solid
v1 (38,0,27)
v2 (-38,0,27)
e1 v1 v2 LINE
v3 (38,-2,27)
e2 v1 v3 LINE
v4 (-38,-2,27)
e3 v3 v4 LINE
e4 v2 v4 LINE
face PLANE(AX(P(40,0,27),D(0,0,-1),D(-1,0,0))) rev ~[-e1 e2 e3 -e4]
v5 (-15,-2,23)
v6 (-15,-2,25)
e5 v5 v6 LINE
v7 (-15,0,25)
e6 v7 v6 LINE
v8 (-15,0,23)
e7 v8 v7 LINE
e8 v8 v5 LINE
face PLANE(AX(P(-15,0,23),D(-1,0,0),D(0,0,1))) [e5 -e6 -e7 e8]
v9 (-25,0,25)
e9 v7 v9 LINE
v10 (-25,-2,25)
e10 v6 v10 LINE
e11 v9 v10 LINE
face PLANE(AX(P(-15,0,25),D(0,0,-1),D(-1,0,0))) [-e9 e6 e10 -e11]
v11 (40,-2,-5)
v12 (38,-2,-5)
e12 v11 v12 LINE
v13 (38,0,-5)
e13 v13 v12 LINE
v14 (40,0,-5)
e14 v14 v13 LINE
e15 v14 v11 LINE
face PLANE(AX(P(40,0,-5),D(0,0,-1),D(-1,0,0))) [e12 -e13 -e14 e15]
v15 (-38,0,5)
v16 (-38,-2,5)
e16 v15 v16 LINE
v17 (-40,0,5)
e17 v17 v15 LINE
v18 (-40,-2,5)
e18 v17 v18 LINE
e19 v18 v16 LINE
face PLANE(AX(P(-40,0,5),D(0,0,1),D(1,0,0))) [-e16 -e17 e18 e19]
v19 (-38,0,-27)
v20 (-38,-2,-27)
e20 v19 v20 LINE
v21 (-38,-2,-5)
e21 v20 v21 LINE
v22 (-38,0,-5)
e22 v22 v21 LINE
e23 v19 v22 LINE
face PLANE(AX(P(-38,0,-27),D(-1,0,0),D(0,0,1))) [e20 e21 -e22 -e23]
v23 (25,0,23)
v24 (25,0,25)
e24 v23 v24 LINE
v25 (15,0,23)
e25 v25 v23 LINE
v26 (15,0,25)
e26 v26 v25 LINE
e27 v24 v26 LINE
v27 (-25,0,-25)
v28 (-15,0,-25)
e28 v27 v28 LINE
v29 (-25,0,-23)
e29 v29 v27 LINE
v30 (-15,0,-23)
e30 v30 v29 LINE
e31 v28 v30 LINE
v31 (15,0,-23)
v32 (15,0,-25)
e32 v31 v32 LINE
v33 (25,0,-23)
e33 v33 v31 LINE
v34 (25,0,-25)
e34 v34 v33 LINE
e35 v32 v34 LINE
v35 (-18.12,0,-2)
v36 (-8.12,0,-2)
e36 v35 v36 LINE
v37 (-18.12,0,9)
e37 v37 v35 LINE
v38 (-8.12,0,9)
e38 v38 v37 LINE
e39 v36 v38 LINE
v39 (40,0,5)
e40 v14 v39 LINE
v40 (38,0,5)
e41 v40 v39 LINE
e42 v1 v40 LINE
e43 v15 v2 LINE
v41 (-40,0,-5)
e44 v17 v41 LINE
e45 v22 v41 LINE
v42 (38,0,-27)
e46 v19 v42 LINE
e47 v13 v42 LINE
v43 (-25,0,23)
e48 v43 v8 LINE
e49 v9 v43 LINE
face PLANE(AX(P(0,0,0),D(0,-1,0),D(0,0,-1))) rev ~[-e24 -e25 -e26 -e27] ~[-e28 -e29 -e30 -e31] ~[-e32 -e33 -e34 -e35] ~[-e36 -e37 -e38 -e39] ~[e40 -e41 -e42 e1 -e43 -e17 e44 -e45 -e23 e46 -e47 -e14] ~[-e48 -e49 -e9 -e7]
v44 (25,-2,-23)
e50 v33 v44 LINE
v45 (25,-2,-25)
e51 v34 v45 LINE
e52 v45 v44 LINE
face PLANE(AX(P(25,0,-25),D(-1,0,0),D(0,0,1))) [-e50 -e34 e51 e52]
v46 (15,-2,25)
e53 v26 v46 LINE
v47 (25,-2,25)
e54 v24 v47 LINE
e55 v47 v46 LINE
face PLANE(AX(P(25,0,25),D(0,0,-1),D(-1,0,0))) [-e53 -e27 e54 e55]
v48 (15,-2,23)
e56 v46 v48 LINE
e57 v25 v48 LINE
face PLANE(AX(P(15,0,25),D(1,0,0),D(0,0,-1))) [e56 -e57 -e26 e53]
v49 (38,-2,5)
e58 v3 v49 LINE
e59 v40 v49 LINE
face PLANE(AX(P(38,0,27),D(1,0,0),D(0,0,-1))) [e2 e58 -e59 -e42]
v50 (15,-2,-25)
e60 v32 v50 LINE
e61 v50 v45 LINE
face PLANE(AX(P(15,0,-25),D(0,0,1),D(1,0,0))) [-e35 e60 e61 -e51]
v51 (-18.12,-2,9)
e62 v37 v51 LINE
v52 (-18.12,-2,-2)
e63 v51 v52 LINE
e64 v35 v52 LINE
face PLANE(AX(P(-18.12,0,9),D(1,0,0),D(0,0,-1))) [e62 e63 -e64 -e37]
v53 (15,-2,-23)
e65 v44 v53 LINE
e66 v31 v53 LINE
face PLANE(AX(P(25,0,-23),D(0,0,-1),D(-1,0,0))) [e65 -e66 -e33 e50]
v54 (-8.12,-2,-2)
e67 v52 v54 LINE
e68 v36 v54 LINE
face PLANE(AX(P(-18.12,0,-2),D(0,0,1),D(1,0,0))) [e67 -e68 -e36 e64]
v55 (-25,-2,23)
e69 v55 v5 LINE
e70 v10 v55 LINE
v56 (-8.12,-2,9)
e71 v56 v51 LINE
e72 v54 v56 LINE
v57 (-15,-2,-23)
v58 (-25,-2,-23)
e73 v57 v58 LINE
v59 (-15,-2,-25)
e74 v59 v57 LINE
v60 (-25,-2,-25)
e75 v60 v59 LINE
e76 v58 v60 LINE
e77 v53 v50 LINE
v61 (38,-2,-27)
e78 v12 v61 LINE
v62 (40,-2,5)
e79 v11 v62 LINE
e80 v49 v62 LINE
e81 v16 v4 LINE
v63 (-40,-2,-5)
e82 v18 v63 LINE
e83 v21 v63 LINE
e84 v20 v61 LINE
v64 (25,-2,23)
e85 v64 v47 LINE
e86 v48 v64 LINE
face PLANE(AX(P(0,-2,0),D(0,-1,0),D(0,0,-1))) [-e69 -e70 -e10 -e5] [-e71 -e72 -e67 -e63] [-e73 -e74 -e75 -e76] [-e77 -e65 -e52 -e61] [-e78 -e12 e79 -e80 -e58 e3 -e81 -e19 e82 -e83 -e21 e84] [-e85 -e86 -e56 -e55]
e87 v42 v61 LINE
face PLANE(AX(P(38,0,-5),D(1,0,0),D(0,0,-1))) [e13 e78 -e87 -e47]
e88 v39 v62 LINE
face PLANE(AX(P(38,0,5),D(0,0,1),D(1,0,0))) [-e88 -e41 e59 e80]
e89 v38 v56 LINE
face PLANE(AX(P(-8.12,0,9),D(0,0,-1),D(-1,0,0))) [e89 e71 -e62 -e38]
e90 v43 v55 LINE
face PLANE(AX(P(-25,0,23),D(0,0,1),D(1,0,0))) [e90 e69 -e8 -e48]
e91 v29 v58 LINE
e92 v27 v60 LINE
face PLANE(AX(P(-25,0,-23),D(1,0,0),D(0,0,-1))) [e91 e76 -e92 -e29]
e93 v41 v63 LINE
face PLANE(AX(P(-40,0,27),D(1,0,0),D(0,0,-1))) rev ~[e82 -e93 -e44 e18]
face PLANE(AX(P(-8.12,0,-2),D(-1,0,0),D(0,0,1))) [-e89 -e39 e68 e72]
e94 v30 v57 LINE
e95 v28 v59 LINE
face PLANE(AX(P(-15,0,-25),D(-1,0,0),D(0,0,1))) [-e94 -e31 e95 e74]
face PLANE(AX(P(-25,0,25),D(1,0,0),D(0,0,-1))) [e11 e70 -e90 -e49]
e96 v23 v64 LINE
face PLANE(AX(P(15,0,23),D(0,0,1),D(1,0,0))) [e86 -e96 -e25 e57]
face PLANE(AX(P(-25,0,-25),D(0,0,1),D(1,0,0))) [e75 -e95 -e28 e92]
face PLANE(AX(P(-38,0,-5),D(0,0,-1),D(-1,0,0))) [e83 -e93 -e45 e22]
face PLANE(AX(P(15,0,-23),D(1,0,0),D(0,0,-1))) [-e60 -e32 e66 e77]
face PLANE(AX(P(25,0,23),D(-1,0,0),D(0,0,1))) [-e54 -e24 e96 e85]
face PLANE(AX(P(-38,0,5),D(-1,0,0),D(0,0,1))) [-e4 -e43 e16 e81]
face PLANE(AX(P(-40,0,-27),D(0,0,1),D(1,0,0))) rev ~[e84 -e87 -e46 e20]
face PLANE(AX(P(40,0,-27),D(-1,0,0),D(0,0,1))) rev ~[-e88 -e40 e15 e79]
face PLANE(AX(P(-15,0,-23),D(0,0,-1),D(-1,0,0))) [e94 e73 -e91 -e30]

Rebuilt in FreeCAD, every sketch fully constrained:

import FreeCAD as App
import Part
import Sketcher


def add_polygon(sketch, points):
    """Adds a closed chain of lines whose ends are joined by coincident constraints."""
    first, n = sketch.GeometryCount, len(points)
    for a, b in zip(points, points[1:] + points[:1]):
        sketch.addGeometry(Part.LineSegment(App.Vector(*a, 0), App.Vector(*b, 0)), False)
    for i in range(n):
        sketch.addConstraint(Sketcher.Constraint("Coincident", first + i, 2, first + (i + 1) % n, 1))

doc = App.newDocument("Part")
body = doc.addObject("PartDesign::Body", "Body")

sketch1 = doc.addObject("Sketcher::SketchObject", "Sketch")
body.addObject(sketch1)
sketch1.AttachmentSupport = (doc.XZ_Plane, [""])
sketch1.MapMode = "FlatFace"
add_polygon(sketch1, [(-40, -27), (40, -27), (40, 27), (-40, 27)])
sketch1.addConstraint([
    Sketcher.Constraint("Horizontal", 0),
    Sketcher.Constraint("Vertical", 1),
    Sketcher.Constraint("Horizontal", 2),
    Sketcher.Constraint("Vertical", 3),
    Sketcher.Constraint("Symmetric", 0, 2, 2, 2, -1, 1),
    Sketcher.Constraint("DistanceX", 0, 1, 0, 2, 80.0),
    Sketcher.Constraint("DistanceY", 1, 1, 1, 2, 54.0),
])
pad1 = doc.addObject("PartDesign::Pad", "Pad")
body.addObject(pad1)
pad1.Profile = sketch1
pad1.Length = 2

sketch2 = doc.addObject("Sketcher::SketchObject", "Sketch001")
body.addObject(sketch2)
sketch2.AttachmentSupport = (doc.XZ_Plane, [""])
sketch2.MapMode = "FlatFace"
add_polygon(sketch2, [(-25, 25), (-25, 23), (-15, 23), (-15, 25)])
sketch2.addConstraint([
    Sketcher.Constraint("Vertical", 0),
    Sketcher.Constraint("Horizontal", 1),
    Sketcher.Constraint("Vertical", 2),
    Sketcher.Constraint("Horizontal", 3),
    Sketcher.Constraint("DistanceX", 1, 1, 1, 2, 10.0),
    Sketcher.Constraint("DistanceY", 0, 2, 0, 1, 2.0),
    Sketcher.Constraint("DistanceX", 0, 2, -1, 1, 25.0),
    Sketcher.Constraint("DistanceY", -1, 1, 0, 2, 23.0),
])
pocket1 = doc.addObject("PartDesign::Pocket", "Pocket")
body.addObject(pocket1)
pocket1.Profile = sketch2
pocket1.Length = 2
pocket1.Reversed = True

sketch3 = doc.addObject("Sketcher::SketchObject", "Sketch002")
body.addObject(sketch3)
sketch3.AttachmentSupport = (doc.XZ_Plane, [""])
sketch3.MapMode = "FlatFace"
add_polygon(sketch3, [(25, 23), (25, 25), (15, 25), (15, 23)])
sketch3.addConstraint([
    Sketcher.Constraint("Vertical", 0),
    Sketcher.Constraint("Horizontal", 1),
    Sketcher.Constraint("Vertical", 2),
    Sketcher.Constraint("Horizontal", 3),
    Sketcher.Constraint("DistanceX", 1, 2, 1, 1, 10.0),
    Sketcher.Constraint("DistanceY", 0, 1, 0, 2, 2.0),
    Sketcher.Constraint("DistanceX", -1, 1, 0, 2, 25.0),
    Sketcher.Constraint("DistanceY", -1, 1, 0, 2, 25.0),
])
pocket2 = doc.addObject("PartDesign::Pocket", "Pocket001")
body.addObject(pocket2)
pocket2.Profile = sketch3
pocket2.Length = 2
pocket2.Reversed = True

sketch4 = doc.addObject("Sketcher::SketchObject", "Sketch003")
body.addObject(sketch4)
sketch4.AttachmentSupport = (doc.XZ_Plane, [""])
sketch4.MapMode = "FlatFace"
add_polygon(sketch4, [(15, -23), (15, -25), (25, -25), (25, -23)])
sketch4.addConstraint([
    Sketcher.Constraint("Vertical", 0),
    Sketcher.Constraint("Horizontal", 1),
    Sketcher.Constraint("Vertical", 2),
    Sketcher.Constraint("Horizontal", 3),
    Sketcher.Constraint("DistanceX", 1, 1, 1, 2, 10.0),
    Sketcher.Constraint("DistanceY", 0, 2, 0, 1, 2.0),
    Sketcher.Constraint("DistanceX", -1, 1, 0, 2, 15.0),
    Sketcher.Constraint("DistanceY", 0, 2, -1, 1, 25.0),
])
pocket3 = doc.addObject("PartDesign::Pocket", "Pocket002")
body.addObject(pocket3)
pocket3.Profile = sketch4
pocket3.Length = 2
pocket3.Reversed = True

sketch5 = doc.addObject("Sketcher::SketchObject", "Sketch004")
body.addObject(sketch5)
sketch5.AttachmentSupport = (doc.XZ_Plane, [""])
sketch5.MapMode = "FlatFace"
add_polygon(sketch5, [(-15, -25), (-15, -23), (-25, -23), (-25, -25)])
sketch5.addConstraint([
    Sketcher.Constraint("Vertical", 0),
    Sketcher.Constraint("Horizontal", 1),
    Sketcher.Constraint("Vertical", 2),
    Sketcher.Constraint("Horizontal", 3),
    Sketcher.Constraint("DistanceX", 1, 2, 1, 1, 10.0),
    Sketcher.Constraint("DistanceY", 0, 1, 0, 2, 2.0),
    Sketcher.Constraint("DistanceX", 0, 2, -1, 1, 15.0),
    Sketcher.Constraint("DistanceY", 0, 2, -1, 1, 23.0),
])
pocket4 = doc.addObject("PartDesign::Pocket", "Pocket003")
body.addObject(pocket4)
pocket4.Profile = sketch5
pocket4.Length = 2
pocket4.Reversed = True

sketch6 = doc.addObject("Sketcher::SketchObject", "Sketch005")
body.addObject(sketch6)
sketch6.AttachmentSupport = (doc.XZ_Plane, [""])
sketch6.MapMode = "FlatFace"
add_polygon(sketch6, [(-40, -27), (-38, -27), (-38, -5), (-40, -5)])
sketch6.addConstraint([
    Sketcher.Constraint("Horizontal", 0),
    Sketcher.Constraint("Vertical", 1),
    Sketcher.Constraint("Horizontal", 2),
    Sketcher.Constraint("Vertical", 3),
    Sketcher.Constraint("DistanceX", 0, 1, 0, 2, 2.0),
    Sketcher.Constraint("DistanceY", 1, 1, 1, 2, 22.0),
    Sketcher.Constraint("DistanceX", 0, 2, -1, 1, 38.0),
    Sketcher.Constraint("DistanceY", 0, 2, -1, 1, 27.0),
])
pocket5 = doc.addObject("PartDesign::Pocket", "Pocket004")
body.addObject(pocket5)
pocket5.Profile = sketch6
pocket5.Length = 2
pocket5.Reversed = True

sketch7 = doc.addObject("Sketcher::SketchObject", "Sketch006")
body.addObject(sketch7)
sketch7.AttachmentSupport = (doc.XZ_Plane, [""])
sketch7.MapMode = "FlatFace"
add_polygon(sketch7, [(-40, 5), (-38, 5), (-38, 27), (-40, 27)])
sketch7.addConstraint([
    Sketcher.Constraint("Horizontal", 0),
    Sketcher.Constraint("Vertical", 1),
    Sketcher.Constraint("Horizontal", 2),
    Sketcher.Constraint("Vertical", 3),
    Sketcher.Constraint("DistanceX", 0, 1, 0, 2, 2.0),
    Sketcher.Constraint("DistanceY", 1, 1, 1, 2, 22.0),
    Sketcher.Constraint("DistanceX", 0, 2, -1, 1, 38.0),
    Sketcher.Constraint("DistanceY", -1, 1, 0, 2, 5.0),
])
pocket6 = doc.addObject("PartDesign::Pocket", "Pocket005")
body.addObject(pocket6)
pocket6.Profile = sketch7
pocket6.Length = 2
pocket6.Reversed = True

sketch8 = doc.addObject("Sketcher::SketchObject", "Sketch007")
body.addObject(sketch8)
sketch8.AttachmentSupport = (doc.XZ_Plane, [""])
sketch8.MapMode = "FlatFace"
add_polygon(sketch8, [(40, -5), (38, -5), (38, -27), (40, -27)])
sketch8.addConstraint([
    Sketcher.Constraint("Horizontal", 0),
    Sketcher.Constraint("Vertical", 1),
    Sketcher.Constraint("Horizontal", 2),
    Sketcher.Constraint("Vertical", 3),
    Sketcher.Constraint("DistanceX", 0, 2, 0, 1, 2.0),
    Sketcher.Constraint("DistanceY", 1, 2, 1, 1, 22.0),
    Sketcher.Constraint("DistanceX", -1, 1, 0, 2, 38.0),
    Sketcher.Constraint("DistanceY", 0, 2, -1, 1, 5.0),
])
pocket7 = doc.addObject("PartDesign::Pocket", "Pocket006")
body.addObject(pocket7)
pocket7.Profile = sketch8
pocket7.Length = 2
pocket7.Reversed = True

sketch9 = doc.addObject("Sketcher::SketchObject", "Sketch008")
body.addObject(sketch9)
sketch9.AttachmentSupport = (doc.XZ_Plane, [""])
sketch9.MapMode = "FlatFace"
add_polygon(sketch9, [(40, 27), (38, 27), (38, 5), (40, 5)])
sketch9.addConstraint([
    Sketcher.Constraint("Horizontal", 0),
    Sketcher.Constraint("Vertical", 1),
    Sketcher.Constraint("Horizontal", 2),
    Sketcher.Constraint("Vertical", 3),
    Sketcher.Constraint("DistanceX", 0, 2, 0, 1, 2.0),
    Sketcher.Constraint("DistanceY", 1, 2, 1, 1, 22.0),
    Sketcher.Constraint("DistanceX", -1, 1, 0, 2, 38.0),
    Sketcher.Constraint("DistanceY", -1, 1, 0, 2, 27.0),
])
pocket8 = doc.addObject("PartDesign::Pocket", "Pocket007")
body.addObject(pocket8)
pocket8.Profile = sketch9
pocket8.Length = 2
pocket8.Reversed = True

sketch10 = doc.addObject("Sketcher::SketchObject", "Sketch009")
body.addObject(sketch10)
sketch10.AttachmentSupport = (doc.XZ_Plane, [""])
sketch10.MapMode = "FlatFace"
add_polygon(sketch10, [(-18.12, 9), (-18.12, -2), (-8.12, -2), (-8.12, 9)])
sketch10.addConstraint([
    Sketcher.Constraint("Vertical", 0),
    Sketcher.Constraint("Horizontal", 1),
    Sketcher.Constraint("Vertical", 2),
    Sketcher.Constraint("Horizontal", 3),
    Sketcher.Constraint("DistanceX", 1, 1, 1, 2, 10.0),
    Sketcher.Constraint("DistanceY", 0, 2, 0, 1, 11.0),
    Sketcher.Constraint("DistanceY", 0, 2, -1, 1, 2.0),
    Sketcher.Constraint("DistanceX", 0, 2, -1, 1, 18.12),
])
pocket9 = doc.addObject("PartDesign::Pocket", "Pocket008")
body.addObject(pocket9)
pocket9.Profile = sketch10
pocket9.Length = 2
pocket9.Reversed = True

doc.recompute()
